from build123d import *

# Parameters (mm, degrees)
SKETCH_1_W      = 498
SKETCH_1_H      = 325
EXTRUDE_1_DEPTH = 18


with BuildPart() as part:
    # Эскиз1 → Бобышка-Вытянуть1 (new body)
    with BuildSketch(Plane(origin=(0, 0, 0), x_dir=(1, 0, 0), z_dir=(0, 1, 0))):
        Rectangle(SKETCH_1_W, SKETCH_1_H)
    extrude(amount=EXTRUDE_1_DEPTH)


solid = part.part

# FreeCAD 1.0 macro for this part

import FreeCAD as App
import Part
import Sketcher
Q = App.Units.Quantity

doc = App.newDocument("Part")
body = doc.addObject("PartDesign::Body", "Body")

# Sketch on XZ plane
sketch1 = doc.addObject("Sketcher::SketchObject", "Sketch")
body.addObject(sketch1)
sketch1.AttachmentSupport = (doc.XZ_Plane, [""])
sketch1.MapMode = "FlatFace"
sketch1.addGeometry([
    Part.LineSegment(App.Vector(-249, -162.5, 0), App.Vector(-249, 162.5, 0)),
    Part.LineSegment(App.Vector(-249, 162.5, 0), App.Vector(249, 162.5, 0)),
    Part.LineSegment(App.Vector(249, 162.5, 0), App.Vector(249, -162.5, 0)),
    Part.LineSegment(App.Vector(249, -162.5, 0), App.Vector(-249, -162.5, 0)),
], False)
sketch1.addConstraint([
    Sketcher.Constraint("Coincident", 0, 2, 1, 1),
    Sketcher.Constraint("Coincident", 1, 2, 2, 1),
    Sketcher.Constraint("Coincident", 2, 2, 3, 1),
    Sketcher.Constraint("Coincident", 3, 2, 0, 1),
    Sketcher.Constraint("Vertical", 0),
    Sketcher.Constraint("Horizontal", 1),
    Sketcher.Constraint("Vertical", 2),
    Sketcher.Constraint("Horizontal", 3),
    Sketcher.Constraint("Symmetric", 0, 2, 2, 2, -1, 1),
    Sketcher.Constraint("DistanceX", 1, 1, 1, 2, Q("498 mm")),
    Sketcher.Constraint("DistanceY", 0, 1, 0, 2, Q("325 mm")),
])
pad1 = doc.addObject("PartDesign::Pad", "Pad")
body.addObject(pad1)
pad1.Profile = sketch1
pad1.Length = 18
pad1.Reversed = True

doc.recompute()
